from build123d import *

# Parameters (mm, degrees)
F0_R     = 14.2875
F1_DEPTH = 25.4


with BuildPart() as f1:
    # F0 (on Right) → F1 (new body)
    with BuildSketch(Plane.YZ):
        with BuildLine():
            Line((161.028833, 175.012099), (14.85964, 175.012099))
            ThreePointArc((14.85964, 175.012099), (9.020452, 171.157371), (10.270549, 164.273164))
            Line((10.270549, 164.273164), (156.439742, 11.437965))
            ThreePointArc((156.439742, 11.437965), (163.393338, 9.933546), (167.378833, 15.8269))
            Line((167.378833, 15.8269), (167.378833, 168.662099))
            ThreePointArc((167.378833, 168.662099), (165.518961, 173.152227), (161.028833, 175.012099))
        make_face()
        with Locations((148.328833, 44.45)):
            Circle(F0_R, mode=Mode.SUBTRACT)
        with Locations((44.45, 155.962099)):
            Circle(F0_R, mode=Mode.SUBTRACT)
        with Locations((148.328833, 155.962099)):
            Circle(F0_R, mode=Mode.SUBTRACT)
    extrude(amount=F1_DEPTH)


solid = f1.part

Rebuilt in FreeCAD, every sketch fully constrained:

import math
import FreeCAD as App
import Part
import Sketcher
Q = App.Units.Quantity

doc = App.newDocument("Part")
body = doc.addObject("PartDesign::Body", "Body")

sketch1 = body.newObject("Sketcher::SketchObject", "Sketch")
sketch1.AttachmentSupport = (doc.getObject("YZ_Plane"), [""])
sketch1.MapMode = "FlatFace"
sketch1.addGeometry([
    Part.LineSegment(App.Vector(161, 175, 0), App.Vector(15, 175, 0)),
    Part.ArcOfCircle(Part.Circle(App.Vector(15, 169, 0), App.Vector(0, 0, 1), 6), math.radians(90), math.radians(224)),
    Part.LineSegment(App.Vector(10, 164, 0), App.Vector(156, 11, 0)),
    Part.ArcOfCircle(Part.Circle(App.Vector(161, 16, 0), App.Vector(0, 0, 1), 6), math.radians(-136), math.radians(0)),
    Part.LineSegment(App.Vector(167, 16, 0), App.Vector(167, 169, 0)),
    Part.ArcOfCircle(Part.Circle(App.Vector(161, 169, 0), App.Vector(0, 0, 1), 6), math.radians(0), math.radians(90)),
    Part.Circle(App.Vector(148, 44, 0), App.Vector(0, 0, 1), 14),
    Part.Circle(App.Vector(44, 156, 0), App.Vector(0, 0, 1), 14),
    Part.Circle(App.Vector(148, 156, 0), App.Vector(0, 0, 1), 14),
], False)
sketch1.addConstraint([
    Sketcher.Constraint("Tangent", 0, 2, 1, 1),
    Sketcher.Constraint("Tangent", 1, 2, 2, 1),
    Sketcher.Constraint("Tangent", 2, 2, 3, 1),
    Sketcher.Constraint("Tangent", 3, 2, 4, 1),
    Sketcher.Constraint("Tangent", 4, 2, 5, 1),
    Sketcher.Constraint("Tangent", 5, 2, 0, 1),
    Sketcher.Constraint("Horizontal", 0),
    Sketcher.Constraint("Vertical", 4),
    Sketcher.Constraint("Equal", 1, 3),
    Sketcher.Constraint("Equal", 3, 5),
    Sketcher.Constraint("Equal", 6, 7),
    Sketcher.Constraint("Equal", 7, 8),
    Sketcher.Constraint("Horizontal", 7, 3, 8, 3),
    Sketcher.Constraint("Vertical", 6, 3, 8, 3),
    Sketcher.Constraint("Radius", 1, Q("0.25 in")),
    Sketcher.Constraint("Diameter", 6, Q("1.125 in")),
    Sketcher.Constraint("DistanceX", 6, 3, 3, 3, Q("0.5 in")),
    Sketcher.Constraint("DistanceY", 7, 3, 1, 3, Q("0.5 in")),
    Sketcher.Constraint("DistanceY", -1, 1, 6, 3, Q("1.75 in")),
    Sketcher.Constraint("DistanceX", -1, 1, 7, 3, Q("1.75 in")),
    Sketcher.Constraint("DistanceY", 4, 1, 4, 2, 152.835199),
    Sketcher.Constraint("DistanceY", -1, 1, 1, 3, 168.662099),
    Sketcher.Constraint("Distance", 2, 211.480569),
    Sketcher.Constraint("DistanceX", -1, 1, 1, 3, 14.85964),
])
pad1 = body.newObject("PartDesign::Pad", "Pad")
pad1.Profile = sketch1
pad1.Length = Q("1 in")

doc.recompute()
